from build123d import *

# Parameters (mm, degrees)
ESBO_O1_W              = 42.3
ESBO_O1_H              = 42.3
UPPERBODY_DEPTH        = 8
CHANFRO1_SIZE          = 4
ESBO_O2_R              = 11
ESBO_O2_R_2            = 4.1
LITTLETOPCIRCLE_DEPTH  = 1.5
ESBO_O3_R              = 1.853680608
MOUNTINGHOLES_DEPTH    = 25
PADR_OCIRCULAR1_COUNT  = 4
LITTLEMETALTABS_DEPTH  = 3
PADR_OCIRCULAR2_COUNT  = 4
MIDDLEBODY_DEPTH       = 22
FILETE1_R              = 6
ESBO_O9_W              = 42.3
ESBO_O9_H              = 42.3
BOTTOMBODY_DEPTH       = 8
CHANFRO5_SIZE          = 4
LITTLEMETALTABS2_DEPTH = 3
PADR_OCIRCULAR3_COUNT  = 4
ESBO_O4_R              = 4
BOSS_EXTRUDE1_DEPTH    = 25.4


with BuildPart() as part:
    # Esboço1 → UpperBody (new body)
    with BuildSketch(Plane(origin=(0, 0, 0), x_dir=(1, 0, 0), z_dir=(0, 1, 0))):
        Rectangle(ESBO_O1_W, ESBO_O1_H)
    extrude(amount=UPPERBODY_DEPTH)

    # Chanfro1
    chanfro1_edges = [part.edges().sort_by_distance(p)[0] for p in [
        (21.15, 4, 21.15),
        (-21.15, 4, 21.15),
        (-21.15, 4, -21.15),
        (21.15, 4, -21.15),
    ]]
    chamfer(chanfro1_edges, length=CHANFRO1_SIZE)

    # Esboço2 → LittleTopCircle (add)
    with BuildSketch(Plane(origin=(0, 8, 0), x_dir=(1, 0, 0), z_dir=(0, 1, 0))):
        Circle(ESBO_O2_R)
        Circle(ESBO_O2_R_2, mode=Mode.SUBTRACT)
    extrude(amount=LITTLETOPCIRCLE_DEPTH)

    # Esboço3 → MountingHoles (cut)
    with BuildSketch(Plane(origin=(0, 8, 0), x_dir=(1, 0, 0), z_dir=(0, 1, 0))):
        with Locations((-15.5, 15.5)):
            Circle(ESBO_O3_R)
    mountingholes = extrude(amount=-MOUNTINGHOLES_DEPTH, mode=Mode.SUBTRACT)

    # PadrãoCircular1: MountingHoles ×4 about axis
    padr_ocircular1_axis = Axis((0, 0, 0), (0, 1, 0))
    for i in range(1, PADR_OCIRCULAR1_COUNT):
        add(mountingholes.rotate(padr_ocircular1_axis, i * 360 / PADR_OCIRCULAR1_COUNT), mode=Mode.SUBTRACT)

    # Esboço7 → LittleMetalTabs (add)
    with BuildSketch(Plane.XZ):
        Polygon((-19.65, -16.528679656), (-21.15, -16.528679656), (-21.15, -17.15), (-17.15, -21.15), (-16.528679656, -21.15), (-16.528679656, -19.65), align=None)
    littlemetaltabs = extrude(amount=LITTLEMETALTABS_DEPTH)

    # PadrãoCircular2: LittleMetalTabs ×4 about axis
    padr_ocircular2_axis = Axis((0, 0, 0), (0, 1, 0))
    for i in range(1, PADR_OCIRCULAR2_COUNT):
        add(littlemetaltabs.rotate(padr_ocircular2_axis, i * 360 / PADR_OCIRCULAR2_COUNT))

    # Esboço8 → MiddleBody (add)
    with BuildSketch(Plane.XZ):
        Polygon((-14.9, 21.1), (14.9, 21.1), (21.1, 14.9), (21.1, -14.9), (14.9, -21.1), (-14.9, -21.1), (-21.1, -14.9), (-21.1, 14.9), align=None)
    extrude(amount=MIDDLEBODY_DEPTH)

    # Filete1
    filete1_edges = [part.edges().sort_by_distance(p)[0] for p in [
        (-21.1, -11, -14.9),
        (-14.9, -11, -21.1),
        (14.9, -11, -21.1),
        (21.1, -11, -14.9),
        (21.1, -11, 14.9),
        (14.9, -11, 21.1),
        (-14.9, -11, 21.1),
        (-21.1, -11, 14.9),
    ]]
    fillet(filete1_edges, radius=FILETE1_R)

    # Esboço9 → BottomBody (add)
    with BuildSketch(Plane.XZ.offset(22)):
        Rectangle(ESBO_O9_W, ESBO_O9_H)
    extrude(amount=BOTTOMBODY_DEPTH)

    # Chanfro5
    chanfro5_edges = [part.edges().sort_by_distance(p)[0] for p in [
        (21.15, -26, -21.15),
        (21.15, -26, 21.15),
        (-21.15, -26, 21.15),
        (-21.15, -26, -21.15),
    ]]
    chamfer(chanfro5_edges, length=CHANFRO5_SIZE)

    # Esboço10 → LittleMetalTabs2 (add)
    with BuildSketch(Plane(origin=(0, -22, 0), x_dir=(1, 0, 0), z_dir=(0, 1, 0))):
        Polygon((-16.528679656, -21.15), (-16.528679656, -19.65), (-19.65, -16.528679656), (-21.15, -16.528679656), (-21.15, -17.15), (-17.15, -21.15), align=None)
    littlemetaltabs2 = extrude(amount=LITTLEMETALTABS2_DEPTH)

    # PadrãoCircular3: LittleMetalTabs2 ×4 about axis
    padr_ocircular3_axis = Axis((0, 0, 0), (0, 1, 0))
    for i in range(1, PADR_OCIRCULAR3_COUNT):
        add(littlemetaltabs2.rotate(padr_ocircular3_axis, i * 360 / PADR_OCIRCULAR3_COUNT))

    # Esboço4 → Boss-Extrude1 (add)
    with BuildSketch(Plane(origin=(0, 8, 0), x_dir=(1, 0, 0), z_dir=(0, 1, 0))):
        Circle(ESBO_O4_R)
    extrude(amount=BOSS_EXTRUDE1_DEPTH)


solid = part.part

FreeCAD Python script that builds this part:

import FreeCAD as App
import Part
import Sketcher
from FreeCAD import Vector
Q = App.Units.Quantity


def edges_at(feature, points):
    """Names of the edges that pass closest to the given points."""
    edges = feature.Shape.Edges
    near = lambda p: min(range(len(edges)), key=lambda i: edges[i].distToShape(Part.Vertex(*p))[0])
    return sorted({f"Edge{near(p) + 1}" for p in points})

doc = App.newDocument("Part")
body = doc.addObject("PartDesign::Body", "Body")

sketch1 = doc.addObject("Sketcher::SketchObject", "Sketch")
body.addObject(sketch1)
sketch1.AttachmentSupport = (doc.XZ_Plane, [""])
sketch1.MapMode = "FlatFace"
sketch1.addGeometry([
    Part.LineSegment(Vector(-21, -21, 0), Vector(-21, 21, 0)),
    Part.LineSegment(Vector(-21, 21, 0), Vector(21, 21, 0)),
    Part.LineSegment(Vector(21, 21, 0), Vector(21, -21, 0)),
    Part.LineSegment(Vector(21, -21, 0), Vector(-21, -21, 0)),
], False)
sketch1.addConstraint([
    Sketcher.Constraint("Coincident", 0, 2, 1, 1),
    Sketcher.Constraint("Coincident", 1, 2, 2, 1),
    Sketcher.Constraint("Coincident", 2, 2, 3, 1),
    Sketcher.Constraint("Coincident", 3, 2, 0, 1),
    Sketcher.Constraint("Vertical", 0),
    Sketcher.Constraint("Horizontal", 1),
    Sketcher.Constraint("Vertical", 2),
    Sketcher.Constraint("Horizontal", 3),
    Sketcher.Constraint("Symmetric", 0, 2, 2, 2, -1, 1),
    Sketcher.Constraint("Equal", 3, 0),
    Sketcher.Constraint("DistanceX", 1, 1, 1, 2, Q("42.3 mm")),
])
pad1 = doc.addObject("PartDesign::Pad", "Pad")
body.addObject(pad1)
pad1.Profile = sketch1
pad1.Length = 8
pad1.Reversed = True
doc.recompute()

chamfer = doc.addObject("PartDesign::Chamfer", "Chamfer")
body.addObject(chamfer)
chamfer.Base = (pad1, edges_at(pad1, [
    (21.15, 4, 21.15),
    (-21.15, 4, 21.15),
    (-21.15, 4, -21.15),
    (21.15, 4, -21.15),
]))
chamfer.Size = 4

sketch2 = doc.addObject("Sketcher::SketchObject", "Sketch001")
body.addObject(sketch2)
sketch2.AttachmentSupport = (doc.XZ_Plane, [""])
sketch2.MapMode = "FlatFace"
sketch2.AttachmentOffset = App.Placement(Vector(0, 0, -8), App.Rotation())
sketch2.addGeometry([
    Part.Circle(Vector(0, 0, 0), Vector(0, 0, 1), 11),
    Part.Circle(Vector(0, 0, 0), Vector(0, 0, 1), 4.1),
], False)
sketch2.addConstraint([
    Sketcher.Constraint("Coincident", 0, 3, -1, 1),
    Sketcher.Constraint("Coincident", 1, 3, -1, 1),
    Sketcher.Constraint("Diameter", 0, Q("22 mm")),
    Sketcher.Constraint("Diameter", 1, Q("8.2 mm")),
])
pad2 = doc.addObject("PartDesign::Pad", "Pad001")
body.addObject(pad2)
pad2.Profile = sketch2
pad2.Length = 1.5
pad2.Reversed = True

sketch3 = doc.addObject("Sketcher::SketchObject", "Sketch002")
body.addObject(sketch3)
sketch3.AttachmentSupport = (doc.XZ_Plane, [""])
sketch3.MapMode = "FlatFace"
sketch3.AttachmentOffset = App.Placement(Vector(0, 0, -8), App.Rotation())
sketch3.addGeometry(Part.Circle(Vector(-15.5, -15.5, 0), Vector(0, 0, 1), 1.9), False)
sketch3.addConstraint([
    Sketcher.Constraint("DistanceX", 0, 3, -1, 1, Q("15.5 mm")),
    Sketcher.Constraint("DistanceY", 0, 3, -1, 1, Q("15.5 mm")),
    Sketcher.Constraint("Diameter", 0, Q("3.707361 mm")),
])
pocket1 = doc.addObject("PartDesign::Pocket", "Pocket")
body.addObject(pocket1)
pocket1.Profile = sketch3
pocket1.Length = 25
pocket1.Reversed = True
doc.recompute()

polarpattern = doc.addObject("PartDesign::PolarPattern", "PolarPattern")
body.addObject(polarpattern)
polarpattern.Originals = [pocket1]
polarpattern.Axis = (doc.Y_Axis, [""])
polarpattern.Angle = 360
polarpattern.Occurrences = 4
body.Tip = polarpattern

sketch4 = doc.addObject("Sketcher::SketchObject", "Sketch003")
body.addObject(sketch4)
sketch4.AttachmentSupport = (doc.XZ_Plane, [""])
sketch4.MapMode = "FlatFace"
sketch4.addGeometry([
    Part.LineSegment(Vector(-19.6, -16.5, 0), Vector(-21.1, -16.5, 0)),
    Part.LineSegment(Vector(-21.1, -16.5, 0), Vector(-21.1, -17.1, 0)),
    Part.LineSegment(Vector(-21.1, -17.1, 0), Vector(-17.1, -21.1, 0)),
    Part.LineSegment(Vector(-17.1, -21.1, 0), Vector(-16.5, -21.1, 0)),
    Part.LineSegment(Vector(-16.5, -21.1, 0), Vector(-16.5, -19.6, 0)),
    Part.LineSegment(Vector(-16.5, -19.6, 0), Vector(-19.6, -16.5, 0)),
], False)
sketch4.addConstraint([
    Sketcher.Constraint("Coincident", 0, 2, 1, 1),
    Sketcher.Constraint("Coincident", 1, 2, 2, 1),
    Sketcher.Constraint("Coincident", 2, 2, 3, 1),
    Sketcher.Constraint("Coincident", 3, 2, 4, 1),
    Sketcher.Constraint("Coincident", 4, 2, 5, 1),
    Sketcher.Constraint("Coincident", 5, 2, 0, 1),
    Sketcher.Constraint("Horizontal", 0),
    Sketcher.Constraint("Vertical", 1),
    Sketcher.Constraint("Horizontal", 3),
    Sketcher.Constraint("Vertical", 4),
    Sketcher.Constraint("Parallel", 2, 5),
    Sketcher.Constraint("Equal", 3, 1),
    Sketcher.Constraint("Equal", 0, 4),
    Sketcher.Constraint("DistanceX", 0, 2, 0, 1, Q("1.5 mm")),
    Sketcher.Constraint("DistanceX", 1, 2, 2, 2, Q("4 mm")),
    Sketcher.Constraint("DistanceX", 0, 2, -1, 1, Q("21.15 mm")),
    Sketcher.Constraint("DistanceY", 1, 2, -1, 1, Q("17.15 mm")),
    Sketcher.Constraint("DistanceX", 3, 1, 3, 2, Q("0.62132 mm")),
])
pad3 = doc.addObject("PartDesign::Pad", "Pad002")
body.addObject(pad3)
pad3.Profile = sketch4
pad3.Length = 3
doc.recompute()

polarpattern2 = doc.addObject("PartDesign::PolarPattern", "PolarPattern001")
body.addObject(polarpattern2)
polarpattern2.Originals = [pad3]
polarpattern2.Axis = (doc.Y_Axis, [""])
polarpattern2.Angle = 360
polarpattern2.Occurrences = 4
body.Tip = polarpattern2

sketch5 = doc.addObject("Sketcher::SketchObject", "Sketch004")
body.addObject(sketch5)
sketch5.AttachmentSupport = (doc.XZ_Plane, [""])
sketch5.MapMode = "FlatFace"
sketch5.addGeometry([
    Part.LineSegment(Vector(15, 21, 0), Vector(-15, 21, 0)),
    Part.LineSegment(Vector(-15, 21, 0), Vector(-21, 15, 0)),
    Part.LineSegment(Vector(-21, 15, 0), Vector(-21, -15, 0)),
    Part.LineSegment(Vector(-21, -15, 0), Vector(-15, -21, 0)),
    Part.LineSegment(Vector(-15, -21, 0), Vector(15, -21, 0)),
    Part.LineSegment(Vector(15, -21, 0), Vector(21, -15, 0)),
    Part.LineSegment(Vector(21, -15, 0), Vector(21, 15, 0)),
    Part.LineSegment(Vector(21, 15, 0), Vector(15, 21, 0)),
], False)
sketch5.addConstraint([
    Sketcher.Constraint("Coincident", 0, 2, 1, 1),
    Sketcher.Constraint("Coincident", 1, 2, 2, 1),
    Sketcher.Constraint("Coincident", 2, 2, 3, 1),
    Sketcher.Constraint("Coincident", 3, 2, 4, 1),
    Sketcher.Constraint("Coincident", 4, 2, 5, 1),
    Sketcher.Constraint("Coincident", 5, 2, 6, 1),
    Sketcher.Constraint("Coincident", 6, 2, 7, 1),
    Sketcher.Constraint("Coincident", 7, 2, 0, 1),
    Sketcher.Constraint("Horizontal", 0),
    Sketcher.Constraint("Vertical", 2),
    Sketcher.Constraint("Horizontal", 4),
    Sketcher.Constraint("Vertical", 6),
    Sketcher.Constraint("Symmetric", 0, 2, 4, 2, -1, 1),
    Sketcher.Constraint("Symmetric", 1, 2, 5, 2, -1, 1),
    Sketcher.Constraint("Perpendicular", 1, 3),
    Sketcher.Constraint("Perpendicular", 5, 7),
    Sketcher.Constraint("Horizontal", 2, 2, 5, 2),
    Sketcher.Constraint("Horizontal", 1, 2, 6, 2),
    Sketcher.Constraint("Vertical", 0, 2, 3, 2),
    Sketcher.Constraint("Equal", 4, 2),
    Sketcher.Constraint("DistanceX", 0, 2, 0, 1, Q("29.8 mm")),
    Sketcher.Constraint("DistanceY", 2, 2, 0, 2, Q("36 mm")),
])
pad4 = doc.addObject("PartDesign::Pad", "Pad003")
body.addObject(pad4)
pad4.Profile = sketch5
pad4.Length = 22
doc.recompute()

fillet = doc.addObject("PartDesign::Fillet", "Fillet")
body.addObject(fillet)
fillet.Base = (pad4, edges_at(pad4, [
    (-21.1, -11, -14.9),
    (-14.9, -11, -21.1),
    (14.9, -11, -21.1),
    (21.1, -11, -14.9),
    (21.1, -11, 14.9),
    (14.9, -11, 21.1),
    (-14.9, -11, 21.1),
    (-21.1, -11, 14.9),
]))
fillet.Radius = 6

sketch6 = doc.addObject("Sketcher::SketchObject", "Sketch005")
body.addObject(sketch6)
sketch6.AttachmentSupport = (doc.XZ_Plane, [""])
sketch6.MapMode = "FlatFace"
sketch6.AttachmentOffset = App.Placement(Vector(0, 0, 22), App.Rotation())
sketch6.addGeometry([
    Part.LineSegment(Vector(-21, 21, 0), Vector(-21, -21, 0)),
    Part.LineSegment(Vector(-21, -21, 0), Vector(21, -21, 0)),
    Part.LineSegment(Vector(21, -21, 0), Vector(21, 21, 0)),
    Part.LineSegment(Vector(21, 21, 0), Vector(-21, 21, 0)),
], False)
sketch6.addConstraint([
    Sketcher.Constraint("Coincident", 0, 2, 1, 1),
    Sketcher.Constraint("Coincident", 1, 2, 2, 1),
    Sketcher.Constraint("Coincident", 2, 2, 3, 1),
    Sketcher.Constraint("Coincident", 3, 2, 0, 1),
    Sketcher.Constraint("Vertical", 0),
    Sketcher.Constraint("Horizontal", 1),
    Sketcher.Constraint("Vertical", 2),
    Sketcher.Constraint("Horizontal", 3),
    Sketcher.Constraint("Symmetric", 0, 2, 2, 2, -1, 1),
    Sketcher.Constraint("Equal", 3, 0),
    Sketcher.Constraint("DistanceX", 1, 1, 1, 2, Q("42.3 mm")),
])
pad5 = doc.addObject("PartDesign::Pad", "Pad004")
body.addObject(pad5)
pad5.Profile = sketch6
pad5.Length = 8
doc.recompute()

chamfer2 = doc.addObject("PartDesign::Chamfer", "Chamfer001")
body.addObject(chamfer2)
chamfer2.Base = (pad5, edges_at(pad5, [
    (21.15, -26, -21.15),
    (21.15, -26, 21.15),
    (-21.15, -26, 21.15),
    (-21.15, -26, -21.15),
]))
chamfer2.Size = 4

sketch7 = doc.addObject("Sketcher::SketchObject", "Sketch006")
body.addObject(sketch7)
sketch7.AttachmentSupport = (doc.XZ_Plane, [""])
sketch7.MapMode = "FlatFace"
sketch7.AttachmentOffset = App.Placement(Vector(0, 0, 22), App.Rotation())
sketch7.addGeometry([
    Part.LineSegment(Vector(-16.5, 21.1, 0), Vector(-16.5, 19.6, 0)),
    Part.LineSegment(Vector(-16.5, 19.6, 0), Vector(-19.6, 16.5, 0)),
    Part.LineSegment(Vector(-19.6, 16.5, 0), Vector(-21.1, 16.5, 0)),
    Part.LineSegment(Vector(-21.1, 16.5, 0), Vector(-21.1, 17.1, 0)),
    Part.LineSegment(Vector(-21.1, 17.1, 0), Vector(-17.1, 21.1, 0)),
    Part.LineSegment(Vector(-17.1, 21.1, 0), Vector(-16.5, 21.1, 0)),
], False)
sketch7.addConstraint([
    Sketcher.Constraint("Coincident", 0, 2, 1, 1),
    Sketcher.Constraint("Coincident", 1, 2, 2, 1),
    Sketcher.Constraint("Coincident", 2, 2, 3, 1),
    Sketcher.Constraint("Coincident", 3, 2, 4, 1),
    Sketcher.Constraint("Coincident", 4, 2, 5, 1),
    Sketcher.Constraint("Coincident", 5, 2, 0, 1),
    Sketcher.Constraint("Vertical", 0),
    Sketcher.Constraint("Horizontal", 2),
    Sketcher.Constraint("Vertical", 3),
    Sketcher.Constraint("Horizontal", 5),
    Sketcher.Constraint("Parallel", 1, 4),
    Sketcher.Constraint("Equal", 2, 0),
    Sketcher.Constraint("Equal", 5, 3),
    Sketcher.Constraint("DistanceX", 2, 2, 2, 1, Q("1.5 mm")),
    Sketcher.Constraint("DistanceX", 3, 2, 4, 2, Q("4 mm")),
    Sketcher.Constraint("DistanceY", -1, 1, 0, 2, Q("19.65 mm")),
    Sketcher.Constraint("DistanceX", 1, 2, -1, 1, Q("19.65 mm")),
    Sketcher.Constraint("DistanceX", 5, 1, 5, 2, Q("0.62132 mm")),
])
pad6 = doc.addObject("PartDesign::Pad", "Pad005")
body.addObject(pad6)
pad6.Profile = sketch7
pad6.Length = 3
pad6.Reversed = True
doc.recompute()

polarpattern3 = doc.addObject("PartDesign::PolarPattern", "PolarPattern002")
body.addObject(polarpattern3)
polarpattern3.Originals = [pad6]
polarpattern3.Axis = (doc.Y_Axis, [""])
polarpattern3.Angle = 360
polarpattern3.Occurrences = 4
body.Tip = polarpattern3

sketch8 = doc.addObject("Sketcher::SketchObject", "Sketch007")
body.addObject(sketch8)
sketch8.AttachmentSupport = (doc.XZ_Plane, [""])
sketch8.MapMode = "FlatFace"
sketch8.AttachmentOffset = App.Placement(Vector(0, 0, -8), App.Rotation())
sketch8.addGeometry(Part.Circle(Vector(0, 0, 0), Vector(0, 0, 1), 4), False)
sketch8.addConstraint([
    Sketcher.Constraint("Coincident", 0, 3, -1, 1),
    Sketcher.Constraint("Diameter", 0, Q("8 mm")),
])
pad7 = doc.addObject("PartDesign::Pad", "Pad006")
body.addObject(pad7)
pad7.Profile = sketch8
pad7.Length = 25.4
pad7.Reversed = True

doc.recompute()
